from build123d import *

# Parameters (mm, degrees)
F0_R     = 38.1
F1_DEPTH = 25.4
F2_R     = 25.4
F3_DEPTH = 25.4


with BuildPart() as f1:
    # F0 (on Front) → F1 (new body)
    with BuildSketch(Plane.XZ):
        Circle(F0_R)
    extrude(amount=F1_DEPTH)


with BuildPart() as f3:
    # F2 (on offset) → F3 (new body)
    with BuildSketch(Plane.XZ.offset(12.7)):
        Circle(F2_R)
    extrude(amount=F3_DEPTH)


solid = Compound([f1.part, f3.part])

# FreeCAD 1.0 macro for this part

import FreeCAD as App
import Part
import Sketcher
from FreeCAD import Vector
Q = App.Units.Quantity

doc = App.newDocument("Part")
body = doc.addObject("PartDesign::Body", "Body")

# Sketch on XZ plane
sketch1 = body.newObject("Sketcher::SketchObject", "Sketch")
sketch1.AttachmentSupport = (doc.getObject("XZ_Plane"), [""])
sketch1.MapMode = "FlatFace"
sketch1.addGeometry(Part.Circle(Vector(0, 0, 0), Vector(0, 0, 1), 38), False)
sketch1.addConstraint([
    Sketcher.Constraint("Coincident", 0, 3, -1, 1),
    Sketcher.Constraint("Diameter", 0, Q("3 in")),
])
pad1 = body.newObject("PartDesign::Pad", "Pad")
pad1.Profile = sketch1
pad1.Length = Q("1 in")
body2 = doc.addObject("PartDesign::Body", "Body001")

# Sketch on XZ plane
sketch2 = body2.newObject("Sketcher::SketchObject", "Sketch001")
sketch2.AttachmentSupport = (doc.getObject("XZ_Plane001"), [""])
sketch2.MapMode = "FlatFace"
sketch2.AttachmentOffset = App.Placement(Vector(0, 0, 0.5 * 25.4), App.Rotation())
sketch2.addGeometry(Part.Circle(Vector(0, 0, 0), Vector(0, 0, 1), 25), False)
sketch2.addConstraint([
    Sketcher.Constraint("Coincident", 0, 3, -1, 1),
    Sketcher.Constraint("Diameter", 0, Q("2 in")),
])
pad2 = body2.newObject("PartDesign::Pad", "Pad001")
pad2.Profile = sketch2
pad2.Length = Q("1 in")

doc.recompute()
